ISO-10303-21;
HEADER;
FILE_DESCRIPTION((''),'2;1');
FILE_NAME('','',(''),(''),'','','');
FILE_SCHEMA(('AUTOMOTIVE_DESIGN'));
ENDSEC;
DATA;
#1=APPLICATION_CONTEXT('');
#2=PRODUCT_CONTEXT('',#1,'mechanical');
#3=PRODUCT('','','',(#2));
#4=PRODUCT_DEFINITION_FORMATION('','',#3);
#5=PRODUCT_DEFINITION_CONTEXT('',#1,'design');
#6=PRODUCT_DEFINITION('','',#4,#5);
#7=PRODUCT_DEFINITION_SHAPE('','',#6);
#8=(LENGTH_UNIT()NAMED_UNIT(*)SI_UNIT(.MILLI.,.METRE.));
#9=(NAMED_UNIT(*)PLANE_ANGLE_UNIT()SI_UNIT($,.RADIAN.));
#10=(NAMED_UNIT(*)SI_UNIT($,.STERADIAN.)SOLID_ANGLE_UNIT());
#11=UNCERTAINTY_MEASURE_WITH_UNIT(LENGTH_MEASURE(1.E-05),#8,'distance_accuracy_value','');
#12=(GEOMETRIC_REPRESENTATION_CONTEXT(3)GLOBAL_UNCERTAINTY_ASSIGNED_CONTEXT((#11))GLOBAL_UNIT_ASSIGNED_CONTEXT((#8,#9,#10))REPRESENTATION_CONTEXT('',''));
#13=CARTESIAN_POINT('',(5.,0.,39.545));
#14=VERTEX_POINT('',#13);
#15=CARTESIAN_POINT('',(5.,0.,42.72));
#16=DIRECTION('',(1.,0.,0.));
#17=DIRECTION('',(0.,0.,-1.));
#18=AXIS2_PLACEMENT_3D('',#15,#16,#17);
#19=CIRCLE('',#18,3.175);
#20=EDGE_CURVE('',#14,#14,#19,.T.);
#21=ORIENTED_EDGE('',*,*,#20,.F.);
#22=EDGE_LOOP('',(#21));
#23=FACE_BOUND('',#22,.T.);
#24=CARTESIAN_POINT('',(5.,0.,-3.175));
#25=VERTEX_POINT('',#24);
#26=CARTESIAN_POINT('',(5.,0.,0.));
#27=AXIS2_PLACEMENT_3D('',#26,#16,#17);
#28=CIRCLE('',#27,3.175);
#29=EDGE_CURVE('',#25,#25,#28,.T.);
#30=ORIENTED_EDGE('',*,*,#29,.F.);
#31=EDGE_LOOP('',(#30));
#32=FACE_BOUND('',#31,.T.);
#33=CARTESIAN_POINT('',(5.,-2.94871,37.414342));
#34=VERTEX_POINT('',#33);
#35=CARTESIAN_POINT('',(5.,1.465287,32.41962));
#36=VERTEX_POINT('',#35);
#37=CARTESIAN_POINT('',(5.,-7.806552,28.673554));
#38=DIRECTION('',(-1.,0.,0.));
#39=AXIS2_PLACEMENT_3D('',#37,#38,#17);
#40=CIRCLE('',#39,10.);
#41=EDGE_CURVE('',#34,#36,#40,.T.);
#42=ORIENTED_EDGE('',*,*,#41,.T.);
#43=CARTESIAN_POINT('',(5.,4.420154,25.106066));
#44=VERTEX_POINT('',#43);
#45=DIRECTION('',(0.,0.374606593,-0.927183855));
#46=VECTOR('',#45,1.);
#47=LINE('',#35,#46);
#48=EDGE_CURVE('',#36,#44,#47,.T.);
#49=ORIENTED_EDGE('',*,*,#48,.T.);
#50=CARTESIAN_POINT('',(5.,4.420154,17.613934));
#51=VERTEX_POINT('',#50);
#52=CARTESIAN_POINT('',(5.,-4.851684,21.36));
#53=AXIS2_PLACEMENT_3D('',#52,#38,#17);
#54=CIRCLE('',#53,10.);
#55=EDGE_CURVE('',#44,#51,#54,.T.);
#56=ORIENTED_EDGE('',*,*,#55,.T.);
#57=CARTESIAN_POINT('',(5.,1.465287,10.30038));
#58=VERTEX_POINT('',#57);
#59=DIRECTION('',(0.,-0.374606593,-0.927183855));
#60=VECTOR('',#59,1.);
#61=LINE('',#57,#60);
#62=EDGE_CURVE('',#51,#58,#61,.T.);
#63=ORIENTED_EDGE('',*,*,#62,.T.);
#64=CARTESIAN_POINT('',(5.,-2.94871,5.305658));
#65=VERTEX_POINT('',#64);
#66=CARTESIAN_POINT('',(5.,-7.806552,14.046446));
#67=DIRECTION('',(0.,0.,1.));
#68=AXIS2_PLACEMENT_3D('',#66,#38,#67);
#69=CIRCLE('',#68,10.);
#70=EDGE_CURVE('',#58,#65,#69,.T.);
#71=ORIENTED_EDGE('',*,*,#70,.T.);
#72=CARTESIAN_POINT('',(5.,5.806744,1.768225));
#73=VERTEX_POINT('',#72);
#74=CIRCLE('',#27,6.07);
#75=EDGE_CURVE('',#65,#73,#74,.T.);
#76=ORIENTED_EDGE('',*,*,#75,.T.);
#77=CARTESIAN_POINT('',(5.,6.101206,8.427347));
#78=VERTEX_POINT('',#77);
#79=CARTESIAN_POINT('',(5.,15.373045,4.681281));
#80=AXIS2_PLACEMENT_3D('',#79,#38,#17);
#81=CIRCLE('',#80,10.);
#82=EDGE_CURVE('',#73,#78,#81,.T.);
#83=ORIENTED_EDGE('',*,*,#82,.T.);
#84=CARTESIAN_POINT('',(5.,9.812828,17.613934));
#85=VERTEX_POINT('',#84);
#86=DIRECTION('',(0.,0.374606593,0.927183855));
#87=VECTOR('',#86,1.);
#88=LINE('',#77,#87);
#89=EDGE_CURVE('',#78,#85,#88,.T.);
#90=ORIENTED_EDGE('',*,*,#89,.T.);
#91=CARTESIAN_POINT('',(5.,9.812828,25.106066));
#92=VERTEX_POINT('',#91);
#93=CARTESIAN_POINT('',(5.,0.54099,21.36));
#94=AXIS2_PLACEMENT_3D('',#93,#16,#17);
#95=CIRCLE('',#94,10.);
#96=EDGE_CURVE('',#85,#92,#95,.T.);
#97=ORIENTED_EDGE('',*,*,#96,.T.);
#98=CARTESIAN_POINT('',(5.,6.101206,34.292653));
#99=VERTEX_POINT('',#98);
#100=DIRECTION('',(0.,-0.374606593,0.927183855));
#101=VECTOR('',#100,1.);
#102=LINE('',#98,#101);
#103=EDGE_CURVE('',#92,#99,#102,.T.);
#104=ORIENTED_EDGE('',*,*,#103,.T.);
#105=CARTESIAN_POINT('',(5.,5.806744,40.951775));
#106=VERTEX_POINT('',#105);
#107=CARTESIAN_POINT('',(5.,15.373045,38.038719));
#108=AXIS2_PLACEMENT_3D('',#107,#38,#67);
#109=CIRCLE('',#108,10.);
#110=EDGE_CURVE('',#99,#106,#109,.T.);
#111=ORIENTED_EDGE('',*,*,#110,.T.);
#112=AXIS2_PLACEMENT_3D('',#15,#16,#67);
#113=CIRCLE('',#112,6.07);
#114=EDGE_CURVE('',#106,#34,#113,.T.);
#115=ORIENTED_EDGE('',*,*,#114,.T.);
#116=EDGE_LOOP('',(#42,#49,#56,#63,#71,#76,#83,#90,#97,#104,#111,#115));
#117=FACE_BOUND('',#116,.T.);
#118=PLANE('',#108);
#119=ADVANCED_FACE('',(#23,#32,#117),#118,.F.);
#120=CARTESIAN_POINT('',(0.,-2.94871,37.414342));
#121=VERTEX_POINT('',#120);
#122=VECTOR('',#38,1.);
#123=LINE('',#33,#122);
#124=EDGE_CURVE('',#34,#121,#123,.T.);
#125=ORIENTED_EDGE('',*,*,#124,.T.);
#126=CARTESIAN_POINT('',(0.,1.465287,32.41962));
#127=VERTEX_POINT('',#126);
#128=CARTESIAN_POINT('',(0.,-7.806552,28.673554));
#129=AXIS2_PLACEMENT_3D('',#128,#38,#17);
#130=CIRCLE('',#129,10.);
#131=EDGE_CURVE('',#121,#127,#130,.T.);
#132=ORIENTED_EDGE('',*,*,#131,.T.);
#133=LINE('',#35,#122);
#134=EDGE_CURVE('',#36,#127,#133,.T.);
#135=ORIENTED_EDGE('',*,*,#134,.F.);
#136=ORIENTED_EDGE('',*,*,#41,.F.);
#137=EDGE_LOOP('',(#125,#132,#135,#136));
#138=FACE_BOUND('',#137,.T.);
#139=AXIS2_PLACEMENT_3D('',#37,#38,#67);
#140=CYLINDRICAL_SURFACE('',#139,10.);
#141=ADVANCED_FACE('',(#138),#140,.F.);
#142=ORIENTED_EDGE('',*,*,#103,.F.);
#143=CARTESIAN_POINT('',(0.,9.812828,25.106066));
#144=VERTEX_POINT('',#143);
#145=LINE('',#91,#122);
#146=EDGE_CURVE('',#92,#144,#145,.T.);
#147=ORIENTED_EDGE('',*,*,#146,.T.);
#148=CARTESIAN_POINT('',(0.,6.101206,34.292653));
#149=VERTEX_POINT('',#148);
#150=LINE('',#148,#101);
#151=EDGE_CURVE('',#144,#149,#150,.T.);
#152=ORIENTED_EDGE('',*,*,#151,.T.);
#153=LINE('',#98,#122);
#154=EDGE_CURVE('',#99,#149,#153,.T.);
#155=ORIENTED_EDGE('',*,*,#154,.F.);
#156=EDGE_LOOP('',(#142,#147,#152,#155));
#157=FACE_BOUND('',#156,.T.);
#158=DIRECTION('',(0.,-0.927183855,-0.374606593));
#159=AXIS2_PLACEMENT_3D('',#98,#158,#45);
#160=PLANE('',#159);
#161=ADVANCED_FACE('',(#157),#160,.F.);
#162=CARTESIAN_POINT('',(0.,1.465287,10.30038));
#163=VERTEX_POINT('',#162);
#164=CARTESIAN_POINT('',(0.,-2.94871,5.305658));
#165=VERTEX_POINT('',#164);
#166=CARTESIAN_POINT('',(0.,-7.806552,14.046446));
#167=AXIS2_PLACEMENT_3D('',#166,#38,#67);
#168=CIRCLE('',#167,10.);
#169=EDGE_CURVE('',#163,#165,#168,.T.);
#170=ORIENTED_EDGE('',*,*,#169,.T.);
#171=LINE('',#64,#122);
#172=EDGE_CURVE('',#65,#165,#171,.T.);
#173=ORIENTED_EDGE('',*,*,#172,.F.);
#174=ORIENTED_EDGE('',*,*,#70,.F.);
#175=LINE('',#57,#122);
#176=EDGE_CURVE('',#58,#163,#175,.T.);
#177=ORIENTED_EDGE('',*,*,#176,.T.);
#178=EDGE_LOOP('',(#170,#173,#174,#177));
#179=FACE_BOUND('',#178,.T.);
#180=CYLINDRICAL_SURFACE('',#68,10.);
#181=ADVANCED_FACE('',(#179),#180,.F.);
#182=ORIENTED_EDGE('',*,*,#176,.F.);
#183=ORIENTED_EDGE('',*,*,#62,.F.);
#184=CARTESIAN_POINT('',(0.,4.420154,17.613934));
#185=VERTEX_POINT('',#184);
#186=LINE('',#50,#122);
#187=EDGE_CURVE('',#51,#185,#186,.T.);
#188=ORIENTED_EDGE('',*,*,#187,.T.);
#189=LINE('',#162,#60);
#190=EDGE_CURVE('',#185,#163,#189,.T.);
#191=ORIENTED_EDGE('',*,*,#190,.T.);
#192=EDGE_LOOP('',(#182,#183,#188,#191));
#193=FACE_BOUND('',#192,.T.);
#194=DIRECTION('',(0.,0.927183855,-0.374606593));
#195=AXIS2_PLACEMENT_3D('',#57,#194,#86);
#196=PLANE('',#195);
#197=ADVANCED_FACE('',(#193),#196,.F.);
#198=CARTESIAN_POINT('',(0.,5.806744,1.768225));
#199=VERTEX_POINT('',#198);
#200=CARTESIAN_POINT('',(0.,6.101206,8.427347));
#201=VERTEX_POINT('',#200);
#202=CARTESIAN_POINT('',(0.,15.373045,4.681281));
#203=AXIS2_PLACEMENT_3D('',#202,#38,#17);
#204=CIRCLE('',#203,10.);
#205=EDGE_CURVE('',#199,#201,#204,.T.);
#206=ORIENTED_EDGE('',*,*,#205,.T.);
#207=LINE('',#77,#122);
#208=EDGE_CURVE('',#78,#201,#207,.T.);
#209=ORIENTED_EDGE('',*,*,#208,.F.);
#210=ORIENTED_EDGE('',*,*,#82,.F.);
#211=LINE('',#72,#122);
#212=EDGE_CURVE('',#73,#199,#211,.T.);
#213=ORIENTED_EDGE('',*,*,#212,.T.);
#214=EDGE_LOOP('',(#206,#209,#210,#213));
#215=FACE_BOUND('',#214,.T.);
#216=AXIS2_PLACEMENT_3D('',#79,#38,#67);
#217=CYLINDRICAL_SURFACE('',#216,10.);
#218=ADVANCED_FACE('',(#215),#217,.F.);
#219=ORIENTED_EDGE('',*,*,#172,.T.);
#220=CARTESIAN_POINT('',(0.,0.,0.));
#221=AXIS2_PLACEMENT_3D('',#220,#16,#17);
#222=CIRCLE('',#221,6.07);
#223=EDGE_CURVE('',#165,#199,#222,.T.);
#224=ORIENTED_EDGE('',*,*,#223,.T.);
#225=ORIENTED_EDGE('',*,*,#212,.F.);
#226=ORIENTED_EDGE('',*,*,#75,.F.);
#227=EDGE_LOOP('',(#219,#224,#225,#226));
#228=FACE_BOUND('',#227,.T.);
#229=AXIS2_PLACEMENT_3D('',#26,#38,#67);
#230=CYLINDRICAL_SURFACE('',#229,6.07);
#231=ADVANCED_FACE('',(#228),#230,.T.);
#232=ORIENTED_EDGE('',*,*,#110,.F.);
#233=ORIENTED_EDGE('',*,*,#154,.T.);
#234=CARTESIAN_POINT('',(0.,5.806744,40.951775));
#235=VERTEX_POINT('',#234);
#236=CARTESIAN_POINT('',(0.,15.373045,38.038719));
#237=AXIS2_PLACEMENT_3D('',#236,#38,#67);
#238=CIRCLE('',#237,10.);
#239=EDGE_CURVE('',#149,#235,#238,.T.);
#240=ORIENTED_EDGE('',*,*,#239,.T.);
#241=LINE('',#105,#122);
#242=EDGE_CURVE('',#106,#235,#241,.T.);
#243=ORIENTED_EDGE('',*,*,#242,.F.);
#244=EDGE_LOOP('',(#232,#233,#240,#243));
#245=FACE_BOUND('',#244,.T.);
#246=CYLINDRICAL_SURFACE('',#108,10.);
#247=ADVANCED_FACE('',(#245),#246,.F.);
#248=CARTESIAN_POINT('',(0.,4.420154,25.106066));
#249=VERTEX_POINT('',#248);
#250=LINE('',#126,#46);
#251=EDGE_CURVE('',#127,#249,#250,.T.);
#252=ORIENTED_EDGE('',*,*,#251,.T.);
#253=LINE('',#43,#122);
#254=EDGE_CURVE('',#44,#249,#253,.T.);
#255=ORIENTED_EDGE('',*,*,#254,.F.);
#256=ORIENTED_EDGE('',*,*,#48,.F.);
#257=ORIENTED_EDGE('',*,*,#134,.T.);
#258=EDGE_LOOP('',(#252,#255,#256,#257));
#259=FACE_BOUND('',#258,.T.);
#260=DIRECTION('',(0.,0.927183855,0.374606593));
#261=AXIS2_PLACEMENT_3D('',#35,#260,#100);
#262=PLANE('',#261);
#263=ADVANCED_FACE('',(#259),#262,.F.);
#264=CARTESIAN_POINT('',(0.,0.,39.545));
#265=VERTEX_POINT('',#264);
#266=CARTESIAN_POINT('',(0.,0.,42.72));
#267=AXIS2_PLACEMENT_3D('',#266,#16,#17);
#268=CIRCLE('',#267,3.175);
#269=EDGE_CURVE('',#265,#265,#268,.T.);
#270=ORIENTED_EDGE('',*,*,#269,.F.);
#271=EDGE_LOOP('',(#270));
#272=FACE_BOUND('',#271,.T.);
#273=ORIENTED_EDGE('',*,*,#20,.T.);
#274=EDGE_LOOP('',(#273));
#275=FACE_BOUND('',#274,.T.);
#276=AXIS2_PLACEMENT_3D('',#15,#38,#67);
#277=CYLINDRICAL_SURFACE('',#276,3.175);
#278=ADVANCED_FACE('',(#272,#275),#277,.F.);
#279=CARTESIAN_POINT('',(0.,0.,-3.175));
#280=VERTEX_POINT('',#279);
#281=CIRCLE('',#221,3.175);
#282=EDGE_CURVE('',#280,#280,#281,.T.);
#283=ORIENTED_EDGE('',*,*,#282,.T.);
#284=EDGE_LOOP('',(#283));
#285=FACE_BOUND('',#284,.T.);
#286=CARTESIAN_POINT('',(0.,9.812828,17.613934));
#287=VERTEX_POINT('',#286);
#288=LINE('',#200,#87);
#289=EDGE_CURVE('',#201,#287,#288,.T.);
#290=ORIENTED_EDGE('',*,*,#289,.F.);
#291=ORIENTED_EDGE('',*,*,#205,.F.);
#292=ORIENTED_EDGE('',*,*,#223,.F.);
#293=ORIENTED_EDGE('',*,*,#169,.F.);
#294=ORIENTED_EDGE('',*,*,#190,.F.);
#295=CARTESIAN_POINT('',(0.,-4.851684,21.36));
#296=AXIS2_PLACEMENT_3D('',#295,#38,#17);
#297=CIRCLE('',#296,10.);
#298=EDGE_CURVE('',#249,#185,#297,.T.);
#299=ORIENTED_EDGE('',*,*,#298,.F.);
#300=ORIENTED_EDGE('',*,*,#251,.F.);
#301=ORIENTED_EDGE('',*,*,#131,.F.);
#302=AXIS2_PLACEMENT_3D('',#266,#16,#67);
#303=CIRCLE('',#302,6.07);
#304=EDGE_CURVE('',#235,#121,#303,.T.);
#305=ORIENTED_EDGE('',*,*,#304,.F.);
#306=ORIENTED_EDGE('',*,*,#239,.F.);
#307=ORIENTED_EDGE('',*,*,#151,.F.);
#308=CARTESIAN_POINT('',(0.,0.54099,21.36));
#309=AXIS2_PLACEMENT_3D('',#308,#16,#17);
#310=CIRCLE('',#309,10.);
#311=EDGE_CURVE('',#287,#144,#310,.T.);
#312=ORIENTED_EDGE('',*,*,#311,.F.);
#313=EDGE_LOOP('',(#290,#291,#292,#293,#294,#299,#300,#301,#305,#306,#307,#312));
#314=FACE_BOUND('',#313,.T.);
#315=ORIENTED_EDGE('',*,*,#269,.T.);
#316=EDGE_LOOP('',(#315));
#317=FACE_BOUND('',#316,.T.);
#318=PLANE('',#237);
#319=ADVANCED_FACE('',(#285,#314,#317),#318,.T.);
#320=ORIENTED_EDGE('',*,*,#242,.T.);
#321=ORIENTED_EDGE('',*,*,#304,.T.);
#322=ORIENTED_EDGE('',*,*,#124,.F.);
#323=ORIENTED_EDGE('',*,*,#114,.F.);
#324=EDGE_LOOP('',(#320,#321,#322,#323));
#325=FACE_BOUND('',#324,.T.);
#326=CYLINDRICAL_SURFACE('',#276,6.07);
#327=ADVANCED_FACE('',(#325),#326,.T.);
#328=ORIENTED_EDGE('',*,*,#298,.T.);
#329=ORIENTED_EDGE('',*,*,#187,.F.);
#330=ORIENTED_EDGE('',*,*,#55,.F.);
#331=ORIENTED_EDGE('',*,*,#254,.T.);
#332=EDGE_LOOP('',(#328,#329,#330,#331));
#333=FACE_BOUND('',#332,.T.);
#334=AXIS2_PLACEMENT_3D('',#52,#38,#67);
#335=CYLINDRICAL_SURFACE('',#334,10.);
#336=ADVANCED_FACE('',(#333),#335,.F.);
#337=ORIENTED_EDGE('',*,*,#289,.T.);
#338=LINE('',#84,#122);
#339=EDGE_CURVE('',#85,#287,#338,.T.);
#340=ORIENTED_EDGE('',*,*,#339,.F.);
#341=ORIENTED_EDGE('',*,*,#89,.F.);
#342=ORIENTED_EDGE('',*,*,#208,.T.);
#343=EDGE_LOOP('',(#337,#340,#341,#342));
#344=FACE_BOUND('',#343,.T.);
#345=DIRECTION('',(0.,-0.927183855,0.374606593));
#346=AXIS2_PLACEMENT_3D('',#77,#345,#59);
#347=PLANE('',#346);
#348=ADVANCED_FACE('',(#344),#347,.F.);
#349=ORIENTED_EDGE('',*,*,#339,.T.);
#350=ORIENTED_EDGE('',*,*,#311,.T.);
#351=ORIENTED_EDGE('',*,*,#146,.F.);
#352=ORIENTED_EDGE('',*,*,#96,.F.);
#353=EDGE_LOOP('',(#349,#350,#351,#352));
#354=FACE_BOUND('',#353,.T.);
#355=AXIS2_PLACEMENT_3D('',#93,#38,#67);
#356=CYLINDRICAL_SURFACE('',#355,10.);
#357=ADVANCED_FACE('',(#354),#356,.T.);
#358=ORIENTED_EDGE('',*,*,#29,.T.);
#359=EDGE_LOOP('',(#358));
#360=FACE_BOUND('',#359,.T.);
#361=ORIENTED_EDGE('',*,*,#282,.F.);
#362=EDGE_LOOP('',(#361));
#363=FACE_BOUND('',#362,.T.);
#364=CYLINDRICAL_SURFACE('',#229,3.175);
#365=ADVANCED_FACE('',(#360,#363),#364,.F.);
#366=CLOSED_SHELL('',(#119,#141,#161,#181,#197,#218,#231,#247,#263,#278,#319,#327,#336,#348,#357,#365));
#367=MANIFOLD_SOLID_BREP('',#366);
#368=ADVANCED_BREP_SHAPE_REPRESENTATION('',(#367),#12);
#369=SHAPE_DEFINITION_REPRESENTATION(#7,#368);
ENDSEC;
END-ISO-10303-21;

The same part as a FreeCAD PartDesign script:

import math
import FreeCAD as App
import Part
import Sketcher

V = App.Vector
Q = App.Units.Quantity

doc = App.newDocument("Part")
body = doc.addObject("PartDesign::Body", "Body")

sketch1 = body.newObject("Sketcher::SketchObject", "Sketch")
sketch1.AttachmentSupport = (doc.getObject("YZ_Plane"), [""])
sketch1.MapMode = "FlatFace"
sketch1.addGeometry(Part.LineSegment(V(9.812828, 25.106066, 0), V(6.101206, 34.292653, 0)), False)
sketch1.addGeometry(Part.ArcOfCircle(Part.Circle(V(15.373045, 38.038719, 0), V(0, 0, 1), 10), math.radians(163.063862), math.radians(202)), False)
sketch1.addGeometry(Part.ArcOfCircle(Part.Circle(V(0, 42.72, 0), V(0, 0, 1), 6.07), math.radians(-16.936138), math.radians(240.936138)), False)
sketch1.addGeometry(Part.ArcOfCircle(Part.Circle(V(-7.806552, 28.673554, 0), V(0, 0, 1), 10), math.radians(22), math.radians(60.936138)), False)
sketch1.addGeometry(Part.LineSegment(V(1.465287, 32.41962, 0), V(4.420154, 25.106066, 0)), False)
sketch1.addGeometry(Part.ArcOfCircle(Part.Circle(V(-4.851684, 21.36, 0), V(0, 0, 1), 10), math.radians(-22), math.radians(22)), False)
sketch1.addGeometry(Part.LineSegment(V(4.420154, 17.613934, 0), V(1.465287, 10.30038, 0)), False)
sketch1.addGeometry(Part.ArcOfCircle(Part.Circle(V(-7.806552, 14.046446, 0), V(0, 0, 1), 10), math.radians(-60.936138), math.radians(-22)), False)
sketch1.addGeometry(Part.ArcOfCircle(Part.Circle(V(0, 0, 0), V(0, 0, 1), 6.07), math.radians(119.063862), math.radians(376.936138)), False)
sketch1.addGeometry(Part.ArcOfCircle(Part.Circle(V(15.373045, 4.681281, 0), V(0, 0, 1), 10), math.radians(158), math.radians(196.936138)), False)
sketch1.addGeometry(Part.LineSegment(V(6.101206, 8.427347, 0), V(9.812828, 17.613934, 0)), False)
sketch1.addGeometry(Part.ArcOfCircle(Part.Circle(V(0.54099, 21.36, 0), V(0, 0, 1), 10), math.radians(-22), math.radians(22)), False)
sketch1.addGeometry(Part.Circle(V(0, 0, 0), V(0, 0, 1), 3.175), False)
sketch1.addGeometry(Part.Circle(V(0, 42.72, 0), V(0, 0, 1), 3.175), False)
sketch1.addConstraint(Sketcher.Constraint("Tangent", 0, 2, 1, 2))
sketch1.addConstraint(Sketcher.Constraint("Tangent", 1, 1, 2, 1))
sketch1.addConstraint(Sketcher.Constraint("Tangent", 2, 2, 3, 2))
sketch1.addConstraint(Sketcher.Constraint("Tangent", 3, 1, 4, 1))
sketch1.addConstraint(Sketcher.Constraint("Tangent", 4, 2, 5, 2))
sketch1.addConstraint(Sketcher.Constraint("Tangent", 5, 1, 6, 1))
sketch1.addConstraint(Sketcher.Constraint("Tangent", 6, 2, 7, 2))
sketch1.addConstraint(Sketcher.Constraint("Tangent", 7, 1, 8, 1))
sketch1.addConstraint(Sketcher.Constraint("Tangent", 8, 2, 9, 2))
sketch1.addConstraint(Sketcher.Constraint("Tangent", 9, 1, 10, 1))
sketch1.addConstraint(Sketcher.Constraint("Tangent", 10, 2, 11, 1))
sketch1.addConstraint(Sketcher.Constraint("Tangent", 11, 2, 0, 1))
sketch1.addConstraint(Sketcher.Constraint("Coincident", 8, 3, -1, 1))
sketch1.addConstraint(Sketcher.Constraint("Coincident", 12, 3, -1, 1))
sketch1.addConstraint(Sketcher.Constraint("Coincident", 13, 3, 2, 3))
sketch1.addConstraint(Sketcher.Constraint("Equal", 1, 3))
sketch1.addConstraint(Sketcher.Constraint("Equal", 3, 5))
sketch1.addConstraint(Sketcher.Constraint("Equal", 5, 7))
sketch1.addConstraint(Sketcher.Constraint("Equal", 2, 8))
sketch1.addConstraint(Sketcher.Constraint("Equal", 7, 9))
sketch1.addConstraint(Sketcher.Constraint("Equal", 9, 11))
sketch1.addConstraint(Sketcher.Constraint("Equal", 12, 13))
sketch1.addConstraint(Sketcher.Constraint("PointOnObject", 2, 3, -2))
sketch1.addConstraint(Sketcher.Constraint("Parallel", 0, 4))
sketch1.addConstraint(Sketcher.Constraint("Parallel", 6, 10))
sketch1.addConstraint(Sketcher.Constraint("Horizontal", 5, 3, 11, 3))
sketch1.addConstraint(Sketcher.Constraint("Vertical", 3, 3, 7, 3))
sketch1.addConstraint(Sketcher.Constraint("Vertical", 1, 3, 9, 3))
sketch1.addConstraint(Sketcher.Constraint("Radius", 1, 10.0))
sketch1.addConstraint(Sketcher.Constraint("Diameter", 12, 6.35))
sketch1.addConstraint(Sketcher.Constraint("Angle", 0, Q("112 deg")))
sketch1.addConstraint(Sketcher.Constraint("Radius", 2, 6.07))
sketch1.addConstraint(Sketcher.Constraint("DistanceY", -1, 1, 2, 3, 42.72))
sketch1.addConstraint(Sketcher.Constraint("DistanceY", 3, 3, 0, 2, 5.619099))
sketch1.addConstraint(Sketcher.Constraint("DistanceX", 1, 1, 1, 3, 9.5663))
pad1 = body.newObject("PartDesign::Pad", "Pad")
pad1.Profile = sketch1
pad1.Length = 5

doc.recompute()
